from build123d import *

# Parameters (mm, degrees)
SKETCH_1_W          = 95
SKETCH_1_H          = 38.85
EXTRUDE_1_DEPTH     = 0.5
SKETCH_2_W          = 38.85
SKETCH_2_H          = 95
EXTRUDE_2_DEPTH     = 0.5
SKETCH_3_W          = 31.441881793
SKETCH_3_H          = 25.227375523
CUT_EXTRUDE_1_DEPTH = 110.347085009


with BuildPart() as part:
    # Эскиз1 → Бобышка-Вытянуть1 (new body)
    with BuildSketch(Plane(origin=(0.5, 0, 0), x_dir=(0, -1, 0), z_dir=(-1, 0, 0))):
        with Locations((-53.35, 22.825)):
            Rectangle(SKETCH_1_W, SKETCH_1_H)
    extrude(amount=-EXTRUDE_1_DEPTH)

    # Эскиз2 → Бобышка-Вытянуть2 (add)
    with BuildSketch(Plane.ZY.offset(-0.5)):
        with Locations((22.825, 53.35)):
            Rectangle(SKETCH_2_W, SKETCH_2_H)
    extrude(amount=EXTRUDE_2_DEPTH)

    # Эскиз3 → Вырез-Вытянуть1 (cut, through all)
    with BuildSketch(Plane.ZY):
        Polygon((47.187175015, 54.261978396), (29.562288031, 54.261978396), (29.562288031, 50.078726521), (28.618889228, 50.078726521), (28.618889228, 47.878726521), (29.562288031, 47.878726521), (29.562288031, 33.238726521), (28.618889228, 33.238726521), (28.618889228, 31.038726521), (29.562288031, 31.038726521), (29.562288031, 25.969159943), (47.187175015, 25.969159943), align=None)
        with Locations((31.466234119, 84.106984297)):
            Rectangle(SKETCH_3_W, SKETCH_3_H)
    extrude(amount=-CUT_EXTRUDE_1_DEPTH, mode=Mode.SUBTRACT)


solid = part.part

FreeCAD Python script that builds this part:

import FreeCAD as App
import Part
import Sketcher
Q = App.Units.Quantity


def add_polygon(sketch, points):
    """Adds a closed chain of lines whose ends are joined by coincident constraints."""
    first, n = sketch.GeometryCount, len(points)
    for a, b in zip(points, points[1:] + points[:1]):
        sketch.addGeometry(Part.LineSegment(App.Vector(*a, 0), App.Vector(*b, 0)), False)
    for i in range(n):
        sketch.addConstraint(Sketcher.Constraint("Coincident", first + i, 2, first + (i + 1) % n, 1))

doc = App.newDocument("Part")
body = doc.addObject("PartDesign::Body", "Body")

sketch1 = body.newObject("Sketcher::SketchObject", "Sketch")
sketch1.AttachmentSupport = (doc.getObject("YZ_Plane"), [""])
sketch1.MapMode = "FlatFace"
sketch1.AttachmentOffset = App.Placement(App.Vector(0, 0, 0.5), App.Rotation())
add_polygon(sketch1, [(101, 42), (101, 3), (6, 3), (6, 42)])
sketch1.addConstraint([
    Sketcher.Constraint("Vertical", 0),
    Sketcher.Constraint("Horizontal", 1),
    Sketcher.Constraint("Vertical", 2),
    Sketcher.Constraint("Horizontal", 3),
    Sketcher.Constraint("DistanceX", 1, 2, 1, 1, Q("95 mm")),
    Sketcher.Constraint("DistanceY", 0, 2, 0, 1, Q("38.85 mm")),
    Sketcher.Constraint("DistanceY", -1, 1, 0, 2, Q("3.4 mm")),
    Sketcher.Constraint("DistanceX", -1, 1, 0, 2, Q("100.85 mm")),
])
pad1 = body.newObject("PartDesign::Pad", "Pad")
pad1.Profile = sketch1
pad1.Length = 0.5

sketch2 = body.newObject("Sketcher::SketchObject", "Sketch001")
sketch2.AttachmentSupport = (doc.getObject("YZ_Plane"), [""])
sketch2.MapMode = "FlatFace"
sketch2.AttachmentOffset = App.Placement(App.Vector(0, 0, 0.5), App.Rotation())
add_polygon(sketch2, [(101, 3), (6, 3), (6, 42), (101, 42)])
sketch2.addConstraint([
    Sketcher.Constraint("Horizontal", 0),
    Sketcher.Constraint("Vertical", 1),
    Sketcher.Constraint("Horizontal", 2),
    Sketcher.Constraint("Vertical", 3),
    Sketcher.Constraint("DistanceX", 0, 2, 0, 1, Q("95 mm")),
    Sketcher.Constraint("DistanceY", 1, 1, 1, 2, Q("38.85 mm")),
    Sketcher.Constraint("DistanceY", -1, 1, 0, 2, Q("3.4 mm")),
    Sketcher.Constraint("DistanceX", -1, 1, 0, 2, Q("5.85 mm")),
])
pad2 = body.newObject("PartDesign::Pad", "Pad001")
pad2.Profile = sketch2
pad2.Length = 0.5
pad2.Reversed = True

sketch3 = body.newObject("Sketcher::SketchObject", "Sketch002")
sketch3.AttachmentSupport = (doc.getObject("YZ_Plane"), [""])
sketch3.MapMode = "FlatFace"
add_polygon(sketch3, [(54.3, 47.2), (54.3, 29.6), (50.1, 29.6), (50.1, 28.6), (47.9, 28.6), (47.9, 29.6), (33.2, 29.6), (33.2, 28.6), (31, 28.6), (31, 29.6), (26, 29.6), (26, 47.2)])
add_polygon(sketch3, [(96.7, 15.7), (71.5, 15.7), (71.5, 47.2), (96.7, 47.2)])
sketch3.addConstraint([
    Sketcher.Constraint("Vertical", 0),
    Sketcher.Constraint("Horizontal", 1),
    Sketcher.Constraint("Vertical", 2),
    Sketcher.Constraint("Horizontal", 3),
    Sketcher.Constraint("Vertical", 4),
    Sketcher.Constraint("Horizontal", 5),
    Sketcher.Constraint("Vertical", 6),
    Sketcher.Constraint("Horizontal", 7),
    Sketcher.Constraint("Vertical", 8),
    Sketcher.Constraint("Horizontal", 9),
    Sketcher.Constraint("Vertical", 10),
    Sketcher.Constraint("Horizontal", 11),
    Sketcher.Constraint("Horizontal", 12),
    Sketcher.Constraint("Vertical", 13),
    Sketcher.Constraint("Horizontal", 14),
    Sketcher.Constraint("Vertical", 15),
    Sketcher.Constraint("Horizontal", 1, 2, 4, 2),
    Sketcher.Constraint("Horizontal", 3, 2, 6, 2),
    Sketcher.Constraint("Horizontal", 5, 2, 8, 2),
    Sketcher.Constraint("Horizontal", 11, 2, 13, 2),
    Sketcher.Constraint("Equal", 3, 7),
    Sketcher.Constraint("DistanceX", 3, 2, 3, 1, Q("2.2 mm")),
    Sketcher.Constraint("DistanceX", 5, 2, 5, 1, Q("14.64 mm")),
    Sketcher.Constraint("DistanceY", 2, 2, 2, 1, Q("0.943399 mm")),
    Sketcher.Constraint("DistanceX", 1, 2, 1, 1, Q("4.183252 mm")),
    Sketcher.Constraint("DistanceX", 11, 1, 11, 2, Q("28.292818 mm")),
    Sketcher.Constraint("DistanceY", 13, 1, 13, 2, Q("31.441882 mm")),
    Sketcher.Constraint("DistanceX", 12, 2, 12, 1, Q("25.227376 mm")),
    Sketcher.Constraint("DistanceY", 0, 2, 0, 1, Q("17.624887 mm")),
    Sketcher.Constraint("DistanceX", -1, 1, 0, 2, Q("54.261978 mm")),
    Sketcher.Constraint("DistanceY", -1, 1, 0, 2, Q("29.562288 mm")),
    Sketcher.Constraint("DistanceX", 0, 2, 12, 2, Q("17.231318 mm")),
])
pocket1 = body.newObject("PartDesign::Pocket", "Pocket")
pocket1.Profile = sketch3
pocket1.Type = "ThroughAll"
pocket1.Reversed = True

doc.recompute()
